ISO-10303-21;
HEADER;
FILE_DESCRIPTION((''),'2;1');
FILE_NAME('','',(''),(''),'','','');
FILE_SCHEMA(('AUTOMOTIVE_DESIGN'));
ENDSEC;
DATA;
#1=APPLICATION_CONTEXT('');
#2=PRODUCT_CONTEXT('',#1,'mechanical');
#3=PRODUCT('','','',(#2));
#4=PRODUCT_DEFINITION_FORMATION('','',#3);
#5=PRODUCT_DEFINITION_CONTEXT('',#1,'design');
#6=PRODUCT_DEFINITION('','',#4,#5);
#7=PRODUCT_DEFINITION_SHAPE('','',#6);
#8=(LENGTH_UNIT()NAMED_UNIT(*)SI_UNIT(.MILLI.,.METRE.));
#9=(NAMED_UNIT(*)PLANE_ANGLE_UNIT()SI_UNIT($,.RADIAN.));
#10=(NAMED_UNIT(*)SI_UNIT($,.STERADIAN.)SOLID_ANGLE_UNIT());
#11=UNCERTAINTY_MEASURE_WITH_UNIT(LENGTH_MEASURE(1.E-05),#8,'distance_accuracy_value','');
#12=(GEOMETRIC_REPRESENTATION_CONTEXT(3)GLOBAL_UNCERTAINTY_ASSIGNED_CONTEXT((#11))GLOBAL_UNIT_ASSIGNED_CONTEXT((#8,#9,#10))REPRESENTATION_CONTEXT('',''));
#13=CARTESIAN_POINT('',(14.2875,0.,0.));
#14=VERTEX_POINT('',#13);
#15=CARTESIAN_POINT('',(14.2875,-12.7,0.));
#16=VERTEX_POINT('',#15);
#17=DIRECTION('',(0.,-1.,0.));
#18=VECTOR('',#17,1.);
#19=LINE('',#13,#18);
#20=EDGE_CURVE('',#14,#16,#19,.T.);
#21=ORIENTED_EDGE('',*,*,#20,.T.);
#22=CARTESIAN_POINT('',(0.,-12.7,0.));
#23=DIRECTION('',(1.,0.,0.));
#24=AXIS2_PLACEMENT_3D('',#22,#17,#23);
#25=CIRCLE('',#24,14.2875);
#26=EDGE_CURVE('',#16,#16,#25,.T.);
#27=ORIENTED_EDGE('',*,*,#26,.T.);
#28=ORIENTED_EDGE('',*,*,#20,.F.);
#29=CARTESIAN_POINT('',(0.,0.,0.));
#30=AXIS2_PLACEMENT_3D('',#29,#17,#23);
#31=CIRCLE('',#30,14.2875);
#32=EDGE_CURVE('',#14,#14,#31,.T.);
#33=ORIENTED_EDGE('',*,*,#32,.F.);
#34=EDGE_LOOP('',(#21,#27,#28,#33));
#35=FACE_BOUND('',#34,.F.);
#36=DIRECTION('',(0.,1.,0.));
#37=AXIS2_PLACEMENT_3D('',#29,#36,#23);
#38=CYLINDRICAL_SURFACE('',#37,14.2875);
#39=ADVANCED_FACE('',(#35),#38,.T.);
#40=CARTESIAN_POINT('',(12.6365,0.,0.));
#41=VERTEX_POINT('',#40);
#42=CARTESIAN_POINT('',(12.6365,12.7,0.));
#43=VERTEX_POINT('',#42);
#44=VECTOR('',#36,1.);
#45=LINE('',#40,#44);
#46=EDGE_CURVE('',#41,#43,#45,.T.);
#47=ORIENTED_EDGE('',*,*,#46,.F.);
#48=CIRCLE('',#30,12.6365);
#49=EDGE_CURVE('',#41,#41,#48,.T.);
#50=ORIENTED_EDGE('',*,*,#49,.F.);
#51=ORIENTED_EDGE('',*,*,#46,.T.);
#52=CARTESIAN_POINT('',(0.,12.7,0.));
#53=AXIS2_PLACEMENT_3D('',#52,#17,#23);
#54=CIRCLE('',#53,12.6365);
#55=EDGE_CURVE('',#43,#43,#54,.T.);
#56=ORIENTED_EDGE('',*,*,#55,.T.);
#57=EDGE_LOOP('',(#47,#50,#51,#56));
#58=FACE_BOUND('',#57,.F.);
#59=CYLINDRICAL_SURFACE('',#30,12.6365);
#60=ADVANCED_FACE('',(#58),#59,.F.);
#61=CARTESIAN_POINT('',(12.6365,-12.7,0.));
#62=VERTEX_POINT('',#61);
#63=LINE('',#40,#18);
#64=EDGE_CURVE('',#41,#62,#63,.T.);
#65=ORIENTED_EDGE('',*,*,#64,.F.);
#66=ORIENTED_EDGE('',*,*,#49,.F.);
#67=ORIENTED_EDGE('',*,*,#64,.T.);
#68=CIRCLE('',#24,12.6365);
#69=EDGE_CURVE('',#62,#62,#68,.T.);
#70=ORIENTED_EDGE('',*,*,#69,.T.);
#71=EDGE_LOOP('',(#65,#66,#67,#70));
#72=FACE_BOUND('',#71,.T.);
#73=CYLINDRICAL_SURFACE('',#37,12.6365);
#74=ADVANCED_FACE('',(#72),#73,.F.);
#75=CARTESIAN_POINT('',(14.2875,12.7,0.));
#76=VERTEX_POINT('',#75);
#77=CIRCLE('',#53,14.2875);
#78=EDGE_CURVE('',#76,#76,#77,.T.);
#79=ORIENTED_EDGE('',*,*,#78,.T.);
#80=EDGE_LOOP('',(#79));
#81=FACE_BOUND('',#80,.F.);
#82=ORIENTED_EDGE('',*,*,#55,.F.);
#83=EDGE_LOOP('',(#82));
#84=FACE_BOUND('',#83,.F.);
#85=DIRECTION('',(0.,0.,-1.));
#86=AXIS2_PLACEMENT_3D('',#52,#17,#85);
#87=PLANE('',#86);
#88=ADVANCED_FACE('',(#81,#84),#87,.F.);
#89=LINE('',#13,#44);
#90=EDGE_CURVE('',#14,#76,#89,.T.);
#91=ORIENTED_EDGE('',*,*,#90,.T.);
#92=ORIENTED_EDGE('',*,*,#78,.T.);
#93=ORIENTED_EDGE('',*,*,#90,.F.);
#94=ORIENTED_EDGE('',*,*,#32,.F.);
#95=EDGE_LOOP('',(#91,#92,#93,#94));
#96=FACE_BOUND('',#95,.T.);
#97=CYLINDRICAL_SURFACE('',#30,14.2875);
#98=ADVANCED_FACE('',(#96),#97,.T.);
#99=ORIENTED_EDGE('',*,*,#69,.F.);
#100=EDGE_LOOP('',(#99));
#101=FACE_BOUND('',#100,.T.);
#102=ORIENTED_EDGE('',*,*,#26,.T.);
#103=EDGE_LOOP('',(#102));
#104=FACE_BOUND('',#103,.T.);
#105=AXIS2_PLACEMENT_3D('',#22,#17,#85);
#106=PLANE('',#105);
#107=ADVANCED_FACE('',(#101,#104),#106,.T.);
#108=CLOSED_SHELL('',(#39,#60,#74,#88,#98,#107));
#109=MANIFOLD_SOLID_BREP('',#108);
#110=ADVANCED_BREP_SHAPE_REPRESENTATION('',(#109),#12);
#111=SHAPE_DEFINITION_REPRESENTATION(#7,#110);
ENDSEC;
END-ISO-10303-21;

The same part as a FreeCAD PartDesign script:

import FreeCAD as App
import Part
import Sketcher
Q = App.Units.Quantity

doc = App.newDocument("Part")
body = doc.addObject("PartDesign::Body", "Body")

# Sketch on XZ plane
sketch1 = body.newObject("Sketcher::SketchObject", "Sketch")
sketch1.AttachmentSupport = (doc.getObject("XZ_Plane"), [""])
sketch1.MapMode = "FlatFace"
sketch1.addGeometry([
    Part.Circle(App.Vector(0, 0, 0), App.Vector(0, 0, 1), 14),
    Part.Circle(App.Vector(0, 0, 0), App.Vector(0, 0, 1), 13),
], False)
sketch1.addConstraint([
    Sketcher.Constraint("Coincident", 0, 3, -1, 1),
    Sketcher.Constraint("Coincident", 1, 3, -1, 1),
    Sketcher.Constraint("Diameter", 0, Q("1.125 in")),
    Sketcher.Constraint("Diameter", 1, Q("0.995 in")),
])
pad1 = body.newObject("PartDesign::Pad", "Pad")
pad1.Profile = sketch1
pad1.Length = Q("1 in")
pad1.Midplane = True

doc.recompute()
